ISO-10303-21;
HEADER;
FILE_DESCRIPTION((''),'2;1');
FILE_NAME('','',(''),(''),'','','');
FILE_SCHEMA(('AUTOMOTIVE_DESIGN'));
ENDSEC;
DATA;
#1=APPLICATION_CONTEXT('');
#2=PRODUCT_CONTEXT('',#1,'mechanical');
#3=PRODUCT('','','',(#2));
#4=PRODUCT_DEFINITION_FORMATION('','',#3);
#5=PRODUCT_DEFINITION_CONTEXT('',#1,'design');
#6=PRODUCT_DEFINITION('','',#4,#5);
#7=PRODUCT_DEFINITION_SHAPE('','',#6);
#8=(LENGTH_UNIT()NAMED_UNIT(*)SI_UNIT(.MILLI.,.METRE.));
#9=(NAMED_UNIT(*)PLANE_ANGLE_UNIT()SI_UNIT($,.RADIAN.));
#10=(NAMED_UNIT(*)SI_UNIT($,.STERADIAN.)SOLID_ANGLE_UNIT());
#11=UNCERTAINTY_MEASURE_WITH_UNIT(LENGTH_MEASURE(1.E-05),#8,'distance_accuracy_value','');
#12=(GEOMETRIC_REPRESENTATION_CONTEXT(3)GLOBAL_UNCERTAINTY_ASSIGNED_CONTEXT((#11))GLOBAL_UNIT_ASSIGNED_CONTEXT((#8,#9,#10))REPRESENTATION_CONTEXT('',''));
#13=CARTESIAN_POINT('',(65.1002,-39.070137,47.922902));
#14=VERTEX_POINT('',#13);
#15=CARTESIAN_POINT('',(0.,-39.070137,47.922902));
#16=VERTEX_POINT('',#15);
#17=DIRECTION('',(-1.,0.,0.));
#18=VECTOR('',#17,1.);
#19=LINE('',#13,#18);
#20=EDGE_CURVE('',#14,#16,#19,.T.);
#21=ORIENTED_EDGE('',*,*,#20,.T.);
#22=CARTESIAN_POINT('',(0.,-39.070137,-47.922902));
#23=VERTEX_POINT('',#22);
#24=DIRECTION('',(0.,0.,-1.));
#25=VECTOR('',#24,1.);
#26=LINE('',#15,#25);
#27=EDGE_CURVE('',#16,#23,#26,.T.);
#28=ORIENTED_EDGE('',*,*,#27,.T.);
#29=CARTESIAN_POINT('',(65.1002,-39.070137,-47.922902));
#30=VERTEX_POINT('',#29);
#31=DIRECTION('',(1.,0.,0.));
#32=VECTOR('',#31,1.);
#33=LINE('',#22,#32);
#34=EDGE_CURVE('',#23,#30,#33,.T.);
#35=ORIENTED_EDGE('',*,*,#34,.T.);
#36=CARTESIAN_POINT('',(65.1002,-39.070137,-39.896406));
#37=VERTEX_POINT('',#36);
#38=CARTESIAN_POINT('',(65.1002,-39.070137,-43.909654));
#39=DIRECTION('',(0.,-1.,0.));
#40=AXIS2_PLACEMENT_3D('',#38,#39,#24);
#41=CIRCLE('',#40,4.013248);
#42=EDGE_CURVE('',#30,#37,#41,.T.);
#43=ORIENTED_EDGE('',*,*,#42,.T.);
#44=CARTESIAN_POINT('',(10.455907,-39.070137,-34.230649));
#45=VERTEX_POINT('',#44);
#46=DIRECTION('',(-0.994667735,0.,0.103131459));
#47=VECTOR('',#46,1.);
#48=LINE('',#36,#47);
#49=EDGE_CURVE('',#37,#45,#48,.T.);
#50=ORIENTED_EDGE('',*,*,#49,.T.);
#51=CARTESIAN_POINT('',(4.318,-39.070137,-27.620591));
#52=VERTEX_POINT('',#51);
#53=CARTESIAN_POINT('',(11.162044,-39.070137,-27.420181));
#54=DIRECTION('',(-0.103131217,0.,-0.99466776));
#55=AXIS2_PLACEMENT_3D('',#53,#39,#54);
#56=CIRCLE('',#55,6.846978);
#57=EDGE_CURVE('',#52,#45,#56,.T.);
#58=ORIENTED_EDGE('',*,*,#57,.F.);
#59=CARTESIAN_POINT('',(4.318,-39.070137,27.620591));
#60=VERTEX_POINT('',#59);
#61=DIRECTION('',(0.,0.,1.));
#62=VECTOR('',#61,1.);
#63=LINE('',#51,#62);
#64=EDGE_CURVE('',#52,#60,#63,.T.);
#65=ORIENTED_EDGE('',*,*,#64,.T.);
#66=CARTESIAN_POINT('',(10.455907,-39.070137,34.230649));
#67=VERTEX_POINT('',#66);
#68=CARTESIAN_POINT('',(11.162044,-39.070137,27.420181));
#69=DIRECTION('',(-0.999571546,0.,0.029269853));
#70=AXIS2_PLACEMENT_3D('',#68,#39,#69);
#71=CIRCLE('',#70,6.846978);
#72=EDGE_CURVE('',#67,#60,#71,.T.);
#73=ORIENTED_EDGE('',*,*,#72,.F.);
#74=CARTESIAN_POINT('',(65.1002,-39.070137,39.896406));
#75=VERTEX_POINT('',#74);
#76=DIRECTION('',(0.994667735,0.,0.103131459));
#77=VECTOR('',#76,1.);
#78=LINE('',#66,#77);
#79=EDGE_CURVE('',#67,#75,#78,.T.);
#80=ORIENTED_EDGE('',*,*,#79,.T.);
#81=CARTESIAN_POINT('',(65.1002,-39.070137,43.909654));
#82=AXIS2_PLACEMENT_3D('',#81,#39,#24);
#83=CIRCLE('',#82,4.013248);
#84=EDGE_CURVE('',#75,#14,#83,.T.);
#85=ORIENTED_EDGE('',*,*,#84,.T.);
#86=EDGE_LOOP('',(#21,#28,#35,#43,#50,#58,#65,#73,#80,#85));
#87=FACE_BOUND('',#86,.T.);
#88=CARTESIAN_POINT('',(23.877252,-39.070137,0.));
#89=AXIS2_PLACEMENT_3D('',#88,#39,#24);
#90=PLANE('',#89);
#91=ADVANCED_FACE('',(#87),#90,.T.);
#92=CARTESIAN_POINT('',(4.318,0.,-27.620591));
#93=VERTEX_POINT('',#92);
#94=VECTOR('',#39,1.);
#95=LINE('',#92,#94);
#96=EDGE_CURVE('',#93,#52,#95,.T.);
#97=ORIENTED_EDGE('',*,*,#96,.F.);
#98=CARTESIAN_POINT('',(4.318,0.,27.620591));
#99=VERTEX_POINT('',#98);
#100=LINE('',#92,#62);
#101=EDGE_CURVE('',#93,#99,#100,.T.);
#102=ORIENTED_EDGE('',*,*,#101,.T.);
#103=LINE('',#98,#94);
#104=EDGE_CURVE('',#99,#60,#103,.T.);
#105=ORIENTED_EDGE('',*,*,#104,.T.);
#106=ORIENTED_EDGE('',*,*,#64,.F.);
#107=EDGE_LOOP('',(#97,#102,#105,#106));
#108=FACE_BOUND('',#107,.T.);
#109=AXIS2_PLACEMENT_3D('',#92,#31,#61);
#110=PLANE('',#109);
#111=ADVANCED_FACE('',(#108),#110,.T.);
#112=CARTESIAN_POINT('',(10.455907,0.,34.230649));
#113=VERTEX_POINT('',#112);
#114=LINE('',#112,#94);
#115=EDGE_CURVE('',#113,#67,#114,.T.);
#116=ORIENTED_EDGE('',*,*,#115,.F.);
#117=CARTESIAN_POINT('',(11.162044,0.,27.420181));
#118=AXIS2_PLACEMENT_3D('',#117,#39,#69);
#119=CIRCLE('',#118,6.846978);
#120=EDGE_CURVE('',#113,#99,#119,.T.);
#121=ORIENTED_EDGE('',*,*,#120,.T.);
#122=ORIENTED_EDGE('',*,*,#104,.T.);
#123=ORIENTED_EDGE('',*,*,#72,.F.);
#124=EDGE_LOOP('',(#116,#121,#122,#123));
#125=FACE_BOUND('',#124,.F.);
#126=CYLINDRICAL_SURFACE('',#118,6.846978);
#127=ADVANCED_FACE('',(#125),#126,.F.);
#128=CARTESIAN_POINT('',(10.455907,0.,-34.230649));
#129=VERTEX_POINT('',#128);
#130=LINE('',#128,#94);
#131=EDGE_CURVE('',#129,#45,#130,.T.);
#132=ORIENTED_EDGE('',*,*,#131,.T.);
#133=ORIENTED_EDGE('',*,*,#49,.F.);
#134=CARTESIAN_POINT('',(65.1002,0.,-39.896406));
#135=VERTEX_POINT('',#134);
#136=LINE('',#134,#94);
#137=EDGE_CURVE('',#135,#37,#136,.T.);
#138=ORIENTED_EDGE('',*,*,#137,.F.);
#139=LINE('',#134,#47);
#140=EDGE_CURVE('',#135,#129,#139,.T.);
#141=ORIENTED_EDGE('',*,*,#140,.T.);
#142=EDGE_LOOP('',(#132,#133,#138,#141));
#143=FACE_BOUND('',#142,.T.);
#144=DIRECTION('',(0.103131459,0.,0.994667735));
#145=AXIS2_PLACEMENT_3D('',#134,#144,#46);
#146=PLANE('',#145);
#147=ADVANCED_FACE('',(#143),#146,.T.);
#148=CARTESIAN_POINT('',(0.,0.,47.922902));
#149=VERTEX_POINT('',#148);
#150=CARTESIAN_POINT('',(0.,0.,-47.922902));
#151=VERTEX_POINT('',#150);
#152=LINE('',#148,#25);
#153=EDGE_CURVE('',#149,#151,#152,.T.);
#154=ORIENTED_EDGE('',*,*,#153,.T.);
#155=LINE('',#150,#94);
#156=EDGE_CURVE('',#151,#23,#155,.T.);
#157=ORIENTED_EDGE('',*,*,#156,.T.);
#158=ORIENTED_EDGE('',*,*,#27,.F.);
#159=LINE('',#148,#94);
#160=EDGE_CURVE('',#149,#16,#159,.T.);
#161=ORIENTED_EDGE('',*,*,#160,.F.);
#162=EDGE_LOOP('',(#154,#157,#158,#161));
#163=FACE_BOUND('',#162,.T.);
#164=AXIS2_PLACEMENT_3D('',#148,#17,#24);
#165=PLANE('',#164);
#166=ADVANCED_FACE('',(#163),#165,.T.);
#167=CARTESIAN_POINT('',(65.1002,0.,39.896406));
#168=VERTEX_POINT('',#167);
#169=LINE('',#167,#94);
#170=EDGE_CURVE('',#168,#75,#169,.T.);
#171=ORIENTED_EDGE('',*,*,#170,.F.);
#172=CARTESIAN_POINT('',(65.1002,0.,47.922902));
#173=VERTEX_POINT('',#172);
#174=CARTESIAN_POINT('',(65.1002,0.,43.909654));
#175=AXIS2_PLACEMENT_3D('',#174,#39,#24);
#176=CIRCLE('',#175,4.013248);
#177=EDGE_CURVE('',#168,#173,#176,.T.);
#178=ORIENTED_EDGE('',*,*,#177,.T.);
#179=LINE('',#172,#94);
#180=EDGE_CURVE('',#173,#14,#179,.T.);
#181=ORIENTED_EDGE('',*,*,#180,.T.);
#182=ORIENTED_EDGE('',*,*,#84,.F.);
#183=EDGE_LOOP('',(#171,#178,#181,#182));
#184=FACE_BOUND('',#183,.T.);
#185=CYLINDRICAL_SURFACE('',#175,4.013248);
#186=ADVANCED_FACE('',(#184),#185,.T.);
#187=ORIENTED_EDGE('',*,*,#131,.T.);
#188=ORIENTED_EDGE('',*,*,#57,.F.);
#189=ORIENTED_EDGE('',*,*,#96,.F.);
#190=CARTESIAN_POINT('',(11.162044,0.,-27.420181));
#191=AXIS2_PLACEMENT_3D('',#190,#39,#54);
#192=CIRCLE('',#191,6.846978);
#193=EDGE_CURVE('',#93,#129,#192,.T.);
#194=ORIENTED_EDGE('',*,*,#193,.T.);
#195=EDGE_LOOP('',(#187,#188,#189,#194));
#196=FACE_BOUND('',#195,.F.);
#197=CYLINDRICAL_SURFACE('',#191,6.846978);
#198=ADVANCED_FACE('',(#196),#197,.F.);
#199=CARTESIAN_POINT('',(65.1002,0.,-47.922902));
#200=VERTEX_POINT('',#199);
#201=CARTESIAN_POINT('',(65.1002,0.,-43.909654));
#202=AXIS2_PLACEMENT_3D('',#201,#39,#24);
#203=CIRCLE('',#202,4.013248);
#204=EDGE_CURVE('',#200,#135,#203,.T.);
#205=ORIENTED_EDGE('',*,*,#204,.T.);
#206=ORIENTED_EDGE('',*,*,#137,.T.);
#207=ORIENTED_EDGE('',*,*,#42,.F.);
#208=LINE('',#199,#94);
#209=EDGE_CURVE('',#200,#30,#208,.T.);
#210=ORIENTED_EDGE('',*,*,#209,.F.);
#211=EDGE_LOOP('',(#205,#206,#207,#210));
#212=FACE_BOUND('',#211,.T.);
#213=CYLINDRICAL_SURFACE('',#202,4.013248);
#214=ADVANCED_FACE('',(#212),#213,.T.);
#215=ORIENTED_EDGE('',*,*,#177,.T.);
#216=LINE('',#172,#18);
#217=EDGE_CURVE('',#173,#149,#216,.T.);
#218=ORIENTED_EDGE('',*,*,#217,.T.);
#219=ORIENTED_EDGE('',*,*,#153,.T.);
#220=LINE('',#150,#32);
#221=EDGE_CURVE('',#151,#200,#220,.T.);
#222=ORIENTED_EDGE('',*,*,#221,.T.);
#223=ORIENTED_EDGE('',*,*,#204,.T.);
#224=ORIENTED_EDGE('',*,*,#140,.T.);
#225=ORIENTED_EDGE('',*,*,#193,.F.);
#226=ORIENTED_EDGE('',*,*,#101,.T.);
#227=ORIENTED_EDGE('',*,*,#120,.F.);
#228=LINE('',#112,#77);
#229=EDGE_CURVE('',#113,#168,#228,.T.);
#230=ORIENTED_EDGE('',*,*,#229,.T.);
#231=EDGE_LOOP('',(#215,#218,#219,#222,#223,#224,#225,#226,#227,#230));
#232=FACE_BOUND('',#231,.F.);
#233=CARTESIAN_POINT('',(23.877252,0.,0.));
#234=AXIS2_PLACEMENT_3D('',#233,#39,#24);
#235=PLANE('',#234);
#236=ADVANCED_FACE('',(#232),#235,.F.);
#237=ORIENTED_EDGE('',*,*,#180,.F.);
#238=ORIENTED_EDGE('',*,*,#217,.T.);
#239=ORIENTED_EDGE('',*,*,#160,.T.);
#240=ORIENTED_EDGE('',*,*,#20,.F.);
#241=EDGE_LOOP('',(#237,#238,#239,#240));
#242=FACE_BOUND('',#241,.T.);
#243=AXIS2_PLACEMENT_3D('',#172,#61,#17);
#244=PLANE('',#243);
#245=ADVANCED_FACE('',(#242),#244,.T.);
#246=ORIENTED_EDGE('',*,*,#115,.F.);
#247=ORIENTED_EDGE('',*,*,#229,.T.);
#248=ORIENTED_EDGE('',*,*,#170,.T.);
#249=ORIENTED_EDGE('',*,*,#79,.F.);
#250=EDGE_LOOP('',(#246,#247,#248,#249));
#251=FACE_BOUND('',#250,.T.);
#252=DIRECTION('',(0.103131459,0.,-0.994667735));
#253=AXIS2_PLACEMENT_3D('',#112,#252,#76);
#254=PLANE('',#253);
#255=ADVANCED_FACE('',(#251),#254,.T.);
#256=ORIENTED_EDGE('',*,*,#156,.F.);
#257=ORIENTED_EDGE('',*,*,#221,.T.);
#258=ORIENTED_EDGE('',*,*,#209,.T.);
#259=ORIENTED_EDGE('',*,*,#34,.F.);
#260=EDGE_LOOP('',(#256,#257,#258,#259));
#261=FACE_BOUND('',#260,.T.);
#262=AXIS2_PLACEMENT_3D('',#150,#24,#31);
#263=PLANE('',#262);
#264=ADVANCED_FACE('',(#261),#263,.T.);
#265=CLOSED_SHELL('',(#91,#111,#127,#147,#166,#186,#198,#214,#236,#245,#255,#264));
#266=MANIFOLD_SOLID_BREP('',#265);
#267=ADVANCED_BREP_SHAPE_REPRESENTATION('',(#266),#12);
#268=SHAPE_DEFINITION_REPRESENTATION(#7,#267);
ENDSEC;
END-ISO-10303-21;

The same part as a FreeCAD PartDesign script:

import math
import FreeCAD as App
import Part
import Sketcher
Q = App.Units.Quantity

doc = App.newDocument("Part")
params = doc.addObject("Spreadsheet::Sheet", "Params")
for row, (alias, value) in enumerate([
    ("sketch1_width", "2.563 in"),
], start=1):
    params.set(f"A{row}", alias)
    params.set(f"B{row}", "=" + value)
    params.setAlias(f"B{row}", alias)

body = doc.addObject("PartDesign::Body", "Body")

# Sketch on XZ plane
sketch1 = body.newObject("Sketcher::SketchObject", "Sketch")
sketch1.AttachmentSupport = (doc.getObject("XZ_Plane"), [""])
sketch1.MapMode = "FlatFace"
sketch1.addGeometry(Part.LineSegment(App.Vector(0, 47.922902, 0), App.Vector(0, -47.922902, 0)), False)
sketch1.addGeometry(Part.LineSegment(App.Vector(0, -47.922902, 0), App.Vector(65.1002, -47.922902, 0)), False)
sketch1.addGeometry(Part.ArcOfCircle(Part.Circle(App.Vector(65.1002, -43.909654, 0), App.Vector(0, 0, 1), 4.013248), math.radians(-90), math.radians(90)), False)
sketch1.addGeometry(Part.LineSegment(App.Vector(65.1002, -39.896406, 0), App.Vector(10.455907, -34.230649, 0)), False)
sketch1.addGeometry(Part.ArcOfCircle(Part.Circle(App.Vector(11.162044, -27.420181, 0), App.Vector(0, 0, 1), 6.846978), math.radians(-178.322721), math.radians(-95.919509)), False)
sketch1.addGeometry(Part.LineSegment(App.Vector(4.318, -27.620591, 0), App.Vector(4.318, 27.620591, 0)), False)
sketch1.addGeometry(Part.ArcOfCircle(Part.Circle(App.Vector(11.162044, 27.420181, 0), App.Vector(0, 0, 1), 6.846978), math.radians(95.919509), math.radians(178.322721)), False)
sketch1.addGeometry(Part.LineSegment(App.Vector(10.455907, 34.230649, 0), App.Vector(65.1002, 39.896406, 0)), False)
sketch1.addGeometry(Part.ArcOfCircle(Part.Circle(App.Vector(65.1002, 43.909654, 0), App.Vector(0, 0, 1), 4.013248), math.radians(-90), math.radians(90)), False)
sketch1.addGeometry(Part.LineSegment(App.Vector(65.1002, 47.922902, 0), App.Vector(0, 47.922902, 0)), False)
sketch1.addConstraint(Sketcher.Constraint("Coincident", 0, 2, 1, 1))
sketch1.addConstraint(Sketcher.Constraint("Tangent", 1, 2, 2, 1))
sketch1.addConstraint(Sketcher.Constraint("Coincident", 2, 2, 3, 1))
sketch1.addConstraint(Sketcher.Constraint("Tangent", 3, 2, 4, 2))
sketch1.addConstraint(Sketcher.Constraint("Coincident", 4, 1, 5, 1))
sketch1.addConstraint(Sketcher.Constraint("Coincident", 5, 2, 6, 2))
sketch1.addConstraint(Sketcher.Constraint("Tangent", 6, 1, 7, 1))
sketch1.addConstraint(Sketcher.Constraint("Coincident", 7, 2, 8, 1))
sketch1.addConstraint(Sketcher.Constraint("Tangent", 8, 2, 9, 1))
sketch1.addConstraint(Sketcher.Constraint("Coincident", 9, 2, 0, 1))
sketch1.addConstraint(Sketcher.Constraint("Vertical", 0))
sketch1.addConstraint(Sketcher.Constraint("Horizontal", 1))
sketch1.addConstraint(Sketcher.Constraint("Vertical", 5))
sketch1.addConstraint(Sketcher.Constraint("Horizontal", 9))
sketch1.addConstraint(Sketcher.Constraint("Equal", 4, 6))
sketch1.addConstraint(Sketcher.Constraint("Equal", 2, 8))
sketch1.addConstraint(Sketcher.Constraint("Symmetric", 0, 2, 9, 2, -1, 1))
sketch1.addConstraint(Sketcher.Constraint("Symmetric", 4, 3, 6, 3, -1))
sketch1.addConstraint(Sketcher.Constraint("Vertical", 2, 3, 8, 3))
sketch1.addConstraint(Sketcher.Constraint("Vertical", 1, 2, 2, 2))
sketch1.addConstraint(Sketcher.Constraint("Vertical", 2, 2, 7, 2))
sketch1.addConstraint(Sketcher.Constraint("DistanceX", 1, 1, 1, 2, Q("2.563 in")))
sketch1.addConstraint(Sketcher.Constraint("DistanceX", -1, 1, 4, 1, Q("0.17 in")))
sketch1.addConstraint(Sketcher.Constraint("Radius", 2, 4.013248))
sketch1.addConstraint(Sketcher.Constraint("Radius", 4, 6.846978))
sketch1.addConstraint(Sketcher.Constraint("DistanceY", 2, 2, 4, 1, Q("0.4832998 in")))
sketch1.addConstraint(Sketcher.Constraint("DistanceY", 0, 2, 0, 1, 95.845804))
sketch1.addConstraint(Sketcher.Constraint("DistanceY", 4, 3, -1, 1, 27.420181))
sketch1.setExpression("Constraints[21]", "Params.sketch1_width")

# Sketch on XY plane
sketch2 = body.newObject("Sketcher::SketchObject", "Sketch001")
sketch2.AttachmentSupport = (doc.getObject("XY_Plane"), [""])
sketch2.MapMode = "FlatFace"
sketch2.AttachmentOffset = App.Placement(App.Vector(0, 0, -49.339343), App.Rotation())
sketch2.addGeometry(Part.LineSegment(App.Vector(0, 0, 0), App.Vector(0, -39.070137, 0)), False)
sketch2.addConstraint(Sketcher.Constraint("Vertical", 0))
sketch2.addConstraint(Sketcher.Constraint("Coincident", 0, 1, -1, 1))
sketch2.addConstraint(Sketcher.Constraint("DistanceY", 0, 2, 0, 1, 39.070137))
doc.recompute()

additivepipe = body.newObject("PartDesign::AdditivePipe", "AdditivePipe")
additivepipe.Profile = sketch1
additivepipe.Spine = (sketch2, ["Edge1"])

doc.recompute()
